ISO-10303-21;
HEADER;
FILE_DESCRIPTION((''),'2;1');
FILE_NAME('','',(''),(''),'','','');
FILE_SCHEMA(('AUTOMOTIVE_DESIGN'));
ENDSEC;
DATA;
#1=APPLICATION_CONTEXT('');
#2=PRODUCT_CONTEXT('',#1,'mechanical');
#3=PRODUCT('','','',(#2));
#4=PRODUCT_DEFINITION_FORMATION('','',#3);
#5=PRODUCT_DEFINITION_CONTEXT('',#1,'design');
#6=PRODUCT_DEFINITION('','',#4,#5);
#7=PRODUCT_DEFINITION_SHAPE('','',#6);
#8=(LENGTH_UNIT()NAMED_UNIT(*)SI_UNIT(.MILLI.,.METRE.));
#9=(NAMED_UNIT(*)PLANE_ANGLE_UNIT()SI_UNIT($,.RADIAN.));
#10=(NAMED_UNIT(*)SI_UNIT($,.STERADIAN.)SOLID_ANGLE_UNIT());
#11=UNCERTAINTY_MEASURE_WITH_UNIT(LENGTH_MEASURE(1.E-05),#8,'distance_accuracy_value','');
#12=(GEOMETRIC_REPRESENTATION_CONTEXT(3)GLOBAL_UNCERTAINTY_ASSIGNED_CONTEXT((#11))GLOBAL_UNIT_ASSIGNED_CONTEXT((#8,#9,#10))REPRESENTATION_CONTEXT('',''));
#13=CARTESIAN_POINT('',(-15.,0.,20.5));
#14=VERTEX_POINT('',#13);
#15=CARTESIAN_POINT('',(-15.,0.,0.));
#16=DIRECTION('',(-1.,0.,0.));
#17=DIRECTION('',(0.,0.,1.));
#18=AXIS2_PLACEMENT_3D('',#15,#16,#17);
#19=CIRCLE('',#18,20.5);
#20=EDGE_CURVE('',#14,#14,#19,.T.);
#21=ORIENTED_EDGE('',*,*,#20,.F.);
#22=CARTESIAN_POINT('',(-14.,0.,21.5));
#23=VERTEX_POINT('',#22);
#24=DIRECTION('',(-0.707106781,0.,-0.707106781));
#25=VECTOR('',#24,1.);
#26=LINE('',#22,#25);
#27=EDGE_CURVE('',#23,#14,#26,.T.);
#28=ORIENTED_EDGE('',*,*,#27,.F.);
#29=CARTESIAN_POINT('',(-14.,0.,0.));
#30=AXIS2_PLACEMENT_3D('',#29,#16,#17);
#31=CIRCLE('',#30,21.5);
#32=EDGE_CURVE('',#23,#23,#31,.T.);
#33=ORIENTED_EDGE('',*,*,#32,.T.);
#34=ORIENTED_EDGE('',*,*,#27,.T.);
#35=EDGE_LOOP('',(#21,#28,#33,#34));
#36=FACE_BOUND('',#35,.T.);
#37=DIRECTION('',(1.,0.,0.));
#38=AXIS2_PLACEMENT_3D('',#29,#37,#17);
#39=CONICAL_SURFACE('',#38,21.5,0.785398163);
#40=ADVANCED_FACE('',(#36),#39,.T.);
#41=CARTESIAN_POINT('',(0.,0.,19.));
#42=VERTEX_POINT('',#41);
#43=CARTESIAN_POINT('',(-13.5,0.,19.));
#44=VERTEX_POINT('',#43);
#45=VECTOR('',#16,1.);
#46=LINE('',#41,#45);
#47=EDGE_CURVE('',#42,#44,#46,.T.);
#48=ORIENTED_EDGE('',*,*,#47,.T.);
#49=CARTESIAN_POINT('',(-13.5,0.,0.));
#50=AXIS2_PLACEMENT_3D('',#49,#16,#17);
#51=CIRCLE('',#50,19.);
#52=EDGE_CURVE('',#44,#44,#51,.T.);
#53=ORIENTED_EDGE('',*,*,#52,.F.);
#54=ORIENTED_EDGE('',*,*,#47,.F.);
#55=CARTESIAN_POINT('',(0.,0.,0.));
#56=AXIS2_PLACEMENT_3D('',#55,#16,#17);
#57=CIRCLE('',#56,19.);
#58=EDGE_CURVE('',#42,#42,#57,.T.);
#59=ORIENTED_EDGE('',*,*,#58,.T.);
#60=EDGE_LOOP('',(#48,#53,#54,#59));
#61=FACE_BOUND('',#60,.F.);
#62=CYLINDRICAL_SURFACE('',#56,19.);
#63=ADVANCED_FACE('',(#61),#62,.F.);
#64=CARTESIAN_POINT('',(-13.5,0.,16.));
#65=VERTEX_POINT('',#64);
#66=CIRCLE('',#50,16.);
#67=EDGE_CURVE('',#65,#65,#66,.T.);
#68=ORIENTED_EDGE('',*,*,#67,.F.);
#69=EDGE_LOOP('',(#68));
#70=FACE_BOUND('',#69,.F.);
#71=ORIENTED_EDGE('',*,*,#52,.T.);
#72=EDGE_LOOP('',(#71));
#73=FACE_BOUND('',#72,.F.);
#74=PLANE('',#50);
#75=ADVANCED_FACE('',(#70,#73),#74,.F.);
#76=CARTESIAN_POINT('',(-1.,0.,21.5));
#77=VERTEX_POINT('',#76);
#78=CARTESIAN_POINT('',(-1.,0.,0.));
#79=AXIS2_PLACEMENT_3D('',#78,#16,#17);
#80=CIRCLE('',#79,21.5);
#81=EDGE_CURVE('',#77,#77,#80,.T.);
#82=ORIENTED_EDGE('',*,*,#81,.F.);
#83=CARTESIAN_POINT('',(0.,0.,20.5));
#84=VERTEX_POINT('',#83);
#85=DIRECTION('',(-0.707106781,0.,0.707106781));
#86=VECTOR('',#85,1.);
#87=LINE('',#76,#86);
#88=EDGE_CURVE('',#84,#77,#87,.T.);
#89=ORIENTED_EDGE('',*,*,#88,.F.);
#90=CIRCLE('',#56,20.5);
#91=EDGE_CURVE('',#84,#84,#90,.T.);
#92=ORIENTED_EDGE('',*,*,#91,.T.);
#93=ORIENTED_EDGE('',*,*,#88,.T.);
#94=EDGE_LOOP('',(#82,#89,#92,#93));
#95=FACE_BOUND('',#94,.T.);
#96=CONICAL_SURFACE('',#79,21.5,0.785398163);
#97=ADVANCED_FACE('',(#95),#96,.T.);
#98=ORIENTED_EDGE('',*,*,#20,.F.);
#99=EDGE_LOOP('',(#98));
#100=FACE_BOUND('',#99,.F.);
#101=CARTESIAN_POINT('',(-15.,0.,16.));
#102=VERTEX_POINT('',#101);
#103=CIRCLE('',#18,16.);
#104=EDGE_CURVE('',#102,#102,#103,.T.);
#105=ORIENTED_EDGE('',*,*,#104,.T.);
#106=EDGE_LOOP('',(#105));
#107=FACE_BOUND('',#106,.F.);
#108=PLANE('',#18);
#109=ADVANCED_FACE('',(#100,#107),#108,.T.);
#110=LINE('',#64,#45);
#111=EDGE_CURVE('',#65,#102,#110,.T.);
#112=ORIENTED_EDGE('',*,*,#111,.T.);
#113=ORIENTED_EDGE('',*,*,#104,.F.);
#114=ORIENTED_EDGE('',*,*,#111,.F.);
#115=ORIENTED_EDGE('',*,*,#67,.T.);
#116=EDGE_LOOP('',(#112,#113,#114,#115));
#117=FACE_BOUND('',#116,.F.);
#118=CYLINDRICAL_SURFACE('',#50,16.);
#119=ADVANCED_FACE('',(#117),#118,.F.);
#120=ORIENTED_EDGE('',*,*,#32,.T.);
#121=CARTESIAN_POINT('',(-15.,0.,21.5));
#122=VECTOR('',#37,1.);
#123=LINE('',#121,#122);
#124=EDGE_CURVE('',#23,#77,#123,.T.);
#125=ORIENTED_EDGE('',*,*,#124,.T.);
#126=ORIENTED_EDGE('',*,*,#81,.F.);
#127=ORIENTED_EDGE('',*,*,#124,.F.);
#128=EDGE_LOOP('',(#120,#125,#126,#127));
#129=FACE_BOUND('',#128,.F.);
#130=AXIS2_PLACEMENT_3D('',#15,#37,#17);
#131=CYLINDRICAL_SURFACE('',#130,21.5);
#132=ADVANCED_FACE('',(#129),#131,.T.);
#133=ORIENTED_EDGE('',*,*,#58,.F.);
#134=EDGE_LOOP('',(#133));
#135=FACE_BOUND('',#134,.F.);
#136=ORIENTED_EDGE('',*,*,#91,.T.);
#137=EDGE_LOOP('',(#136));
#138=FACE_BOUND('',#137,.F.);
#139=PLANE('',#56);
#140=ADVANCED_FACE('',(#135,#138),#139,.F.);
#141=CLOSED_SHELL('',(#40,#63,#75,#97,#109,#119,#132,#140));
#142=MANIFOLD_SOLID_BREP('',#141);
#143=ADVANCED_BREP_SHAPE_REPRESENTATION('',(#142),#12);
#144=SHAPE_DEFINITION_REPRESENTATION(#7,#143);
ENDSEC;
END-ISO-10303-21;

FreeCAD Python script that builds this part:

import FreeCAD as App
import Part
import Sketcher


def edges_at(feature, points):
    """Names of the edges that pass closest to the given points."""
    edges = feature.Shape.Edges
    near = lambda p: min(range(len(edges)), key=lambda i: edges[i].distToShape(Part.Vertex(*p))[0])
    return sorted({f"Edge{near(p) + 1}" for p in points})

doc = App.newDocument("Part")
params = doc.addObject("Spreadsheet::Sheet", "Params")
for row, (alias, value) in enumerate([
    ("sketch1_width", "15 mm"),
    ("sketch1_width2", "1.5 mm"),
    ("sketch1_height", "2.5 mm"),
    ("sketch1_height2", "3 mm"),
    ("revolution_angle", "360 deg"),
    ("chamfer_size", "1 mm"),
], start=1):
    params.set(f"A{row}", alias)
    params.set(f"B{row}", "=" + value)
    params.setAlias(f"B{row}", alias)

body = doc.addObject("PartDesign::Body", "Body")

# Sketch on XZ plane
sketch1 = doc.addObject("Sketcher::SketchObject", "Sketch")
body.addObject(sketch1)
sketch1.AttachmentSupport = (doc.XZ_Plane, [""])
sketch1.MapMode = "FlatFace"
sketch1.addGeometry(Part.LineSegment(App.Vector(-13.5, 16, 0), App.Vector(-15, 16, 0)), False)
sketch1.addGeometry(Part.LineSegment(App.Vector(-15, 16, 0), App.Vector(-15, 21.5, 0)), False)
sketch1.addGeometry(Part.LineSegment(App.Vector(-15, 21.5, 0), App.Vector(0, 21.5, 0)), False)
sketch1.addGeometry(Part.LineSegment(App.Vector(0, 21.5, 0), App.Vector(0, 19, 0)), False)
sketch1.addGeometry(Part.LineSegment(App.Vector(0, 19, 0), App.Vector(-13.5, 19, 0)), False)
sketch1.addGeometry(Part.LineSegment(App.Vector(-13.5, 19, 0), App.Vector(-13.5, 16, 0)), False)
sketch1.addConstraint(Sketcher.Constraint("Coincident", 0, 2, 1, 1))
sketch1.addConstraint(Sketcher.Constraint("Coincident", 1, 2, 2, 1))
sketch1.addConstraint(Sketcher.Constraint("Coincident", 2, 2, 3, 1))
sketch1.addConstraint(Sketcher.Constraint("Coincident", 3, 2, 4, 1))
sketch1.addConstraint(Sketcher.Constraint("Coincident", 4, 2, 5, 1))
sketch1.addConstraint(Sketcher.Constraint("Coincident", 5, 2, 0, 1))
sketch1.addConstraint(Sketcher.Constraint("Horizontal", 0))
sketch1.addConstraint(Sketcher.Constraint("Vertical", 1))
sketch1.addConstraint(Sketcher.Constraint("Horizontal", 2))
sketch1.addConstraint(Sketcher.Constraint("Vertical", 3))
sketch1.addConstraint(Sketcher.Constraint("Horizontal", 4))
sketch1.addConstraint(Sketcher.Constraint("Vertical", 5))
sketch1.addConstraint(Sketcher.Constraint("PointOnObject", 2, 2, -2))
sketch1.addConstraint(Sketcher.Constraint("DistanceX", 2, 1, 2, 2, 15.0))
sketch1.addConstraint(Sketcher.Constraint("DistanceX", 0, 2, 0, 1, 1.5))
sketch1.addConstraint(Sketcher.Constraint("DistanceY", 3, 2, 3, 1, 2.5))
sketch1.addConstraint(Sketcher.Constraint("DistanceY", 5, 2, 5, 1, 3.0))
sketch1.addConstraint(Sketcher.Constraint("DistanceY", -1, 1, 0, 2, 16.0))
sketch1.setExpression("Constraints[13]", "Params.sketch1_width")
sketch1.setExpression("Constraints[14]", "Params.sketch1_width2")
sketch1.setExpression("Constraints[15]", "Params.sketch1_height")
sketch1.setExpression("Constraints[16]", "Params.sketch1_height2")
revolution = doc.addObject("PartDesign::Revolution", "Revolution")
body.addObject(revolution)
revolution.Profile = sketch1
revolution.ReferenceAxis = (sketch1, ["H_Axis"])
revolution.setExpression("Angle", "Params.revolution_angle")
doc.recompute()

chamfer = doc.addObject("PartDesign::Chamfer", "Chamfer")
body.addObject(chamfer)
chamfer.Base = (revolution, edges_at(revolution, [(0, 0, -21.5), (-15, 0, -21.5)]))
chamfer.setExpression("Size", "Params.chamfer_size")

doc.recompute()
